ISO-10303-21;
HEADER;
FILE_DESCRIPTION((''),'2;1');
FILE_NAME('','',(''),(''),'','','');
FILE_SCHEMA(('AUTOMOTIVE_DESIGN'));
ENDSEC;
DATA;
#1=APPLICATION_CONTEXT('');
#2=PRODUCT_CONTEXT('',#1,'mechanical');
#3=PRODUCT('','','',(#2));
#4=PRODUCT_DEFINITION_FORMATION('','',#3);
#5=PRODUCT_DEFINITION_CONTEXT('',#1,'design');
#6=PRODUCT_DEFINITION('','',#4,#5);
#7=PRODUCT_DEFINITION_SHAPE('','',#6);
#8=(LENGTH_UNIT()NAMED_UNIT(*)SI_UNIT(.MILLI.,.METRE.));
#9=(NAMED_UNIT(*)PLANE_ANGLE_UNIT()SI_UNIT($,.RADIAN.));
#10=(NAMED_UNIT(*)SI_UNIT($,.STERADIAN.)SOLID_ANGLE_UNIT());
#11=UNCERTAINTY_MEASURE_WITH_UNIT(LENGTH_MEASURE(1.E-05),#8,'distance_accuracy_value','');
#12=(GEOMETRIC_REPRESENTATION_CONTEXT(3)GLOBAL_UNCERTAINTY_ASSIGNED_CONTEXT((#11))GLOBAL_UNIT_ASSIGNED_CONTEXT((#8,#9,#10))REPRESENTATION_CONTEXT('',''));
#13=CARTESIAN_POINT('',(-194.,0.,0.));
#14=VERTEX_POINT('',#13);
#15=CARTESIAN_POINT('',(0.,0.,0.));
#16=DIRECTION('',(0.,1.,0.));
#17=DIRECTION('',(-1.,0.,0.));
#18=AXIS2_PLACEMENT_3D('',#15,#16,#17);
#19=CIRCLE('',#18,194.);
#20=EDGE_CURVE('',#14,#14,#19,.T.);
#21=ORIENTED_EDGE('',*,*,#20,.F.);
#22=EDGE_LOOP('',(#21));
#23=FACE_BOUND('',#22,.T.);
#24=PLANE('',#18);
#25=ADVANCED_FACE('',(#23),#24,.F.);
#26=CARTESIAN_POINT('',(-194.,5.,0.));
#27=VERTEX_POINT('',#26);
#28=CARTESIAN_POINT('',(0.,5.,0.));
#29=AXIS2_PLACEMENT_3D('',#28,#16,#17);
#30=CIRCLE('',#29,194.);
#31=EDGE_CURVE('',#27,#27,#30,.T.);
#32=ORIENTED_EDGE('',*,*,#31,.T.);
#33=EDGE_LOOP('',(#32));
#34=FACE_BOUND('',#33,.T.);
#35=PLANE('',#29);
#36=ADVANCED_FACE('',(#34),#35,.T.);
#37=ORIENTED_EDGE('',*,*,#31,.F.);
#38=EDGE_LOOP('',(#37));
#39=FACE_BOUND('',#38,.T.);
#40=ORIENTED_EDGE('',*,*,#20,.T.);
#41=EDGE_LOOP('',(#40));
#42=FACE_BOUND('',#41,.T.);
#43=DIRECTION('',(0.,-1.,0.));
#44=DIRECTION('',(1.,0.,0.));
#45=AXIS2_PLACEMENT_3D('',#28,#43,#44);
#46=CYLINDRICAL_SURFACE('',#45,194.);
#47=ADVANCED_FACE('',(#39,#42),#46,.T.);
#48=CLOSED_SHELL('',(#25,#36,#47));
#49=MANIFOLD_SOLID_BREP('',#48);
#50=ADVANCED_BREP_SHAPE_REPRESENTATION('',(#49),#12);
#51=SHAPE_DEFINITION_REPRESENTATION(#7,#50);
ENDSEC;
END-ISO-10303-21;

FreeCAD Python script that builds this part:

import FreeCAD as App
import Part
import Sketcher

doc = App.newDocument("Part")
params = doc.addObject("Spreadsheet::Sheet", "Params")
for row, (alias, value) in enumerate([
    ("sketch1_diameter", "388 mm"),
    ("pad1_length", "5 mm"),
], start=1):
    params.set(f"A{row}", alias)
    params.set(f"B{row}", "=" + value)
    params.setAlias(f"B{row}", alias)

body = doc.addObject("PartDesign::Body", "Body")

# Sketch on XZ plane
sketch1 = body.newObject("Sketcher::SketchObject", "Sketch")
sketch1.AttachmentSupport = (doc.getObject("XZ_Plane"), [""])
sketch1.MapMode = "FlatFace"
sketch1.addGeometry(Part.Circle(App.Vector(0, 0, 0), App.Vector(0, 0, 1), 194), False)
sketch1.addConstraint([
    Sketcher.Constraint("Coincident", 0, 3, -1, 1),
    Sketcher.Constraint("Diameter", 0, 388.0),
])
sketch1.setExpression("Constraints[1]", "Params.sketch1_diameter")
pad1 = body.newObject("PartDesign::Pad", "Pad")
pad1.Profile = sketch1
pad1.setExpression("Length", "Params.pad1_length")
pad1.Reversed = True

doc.recompute()
